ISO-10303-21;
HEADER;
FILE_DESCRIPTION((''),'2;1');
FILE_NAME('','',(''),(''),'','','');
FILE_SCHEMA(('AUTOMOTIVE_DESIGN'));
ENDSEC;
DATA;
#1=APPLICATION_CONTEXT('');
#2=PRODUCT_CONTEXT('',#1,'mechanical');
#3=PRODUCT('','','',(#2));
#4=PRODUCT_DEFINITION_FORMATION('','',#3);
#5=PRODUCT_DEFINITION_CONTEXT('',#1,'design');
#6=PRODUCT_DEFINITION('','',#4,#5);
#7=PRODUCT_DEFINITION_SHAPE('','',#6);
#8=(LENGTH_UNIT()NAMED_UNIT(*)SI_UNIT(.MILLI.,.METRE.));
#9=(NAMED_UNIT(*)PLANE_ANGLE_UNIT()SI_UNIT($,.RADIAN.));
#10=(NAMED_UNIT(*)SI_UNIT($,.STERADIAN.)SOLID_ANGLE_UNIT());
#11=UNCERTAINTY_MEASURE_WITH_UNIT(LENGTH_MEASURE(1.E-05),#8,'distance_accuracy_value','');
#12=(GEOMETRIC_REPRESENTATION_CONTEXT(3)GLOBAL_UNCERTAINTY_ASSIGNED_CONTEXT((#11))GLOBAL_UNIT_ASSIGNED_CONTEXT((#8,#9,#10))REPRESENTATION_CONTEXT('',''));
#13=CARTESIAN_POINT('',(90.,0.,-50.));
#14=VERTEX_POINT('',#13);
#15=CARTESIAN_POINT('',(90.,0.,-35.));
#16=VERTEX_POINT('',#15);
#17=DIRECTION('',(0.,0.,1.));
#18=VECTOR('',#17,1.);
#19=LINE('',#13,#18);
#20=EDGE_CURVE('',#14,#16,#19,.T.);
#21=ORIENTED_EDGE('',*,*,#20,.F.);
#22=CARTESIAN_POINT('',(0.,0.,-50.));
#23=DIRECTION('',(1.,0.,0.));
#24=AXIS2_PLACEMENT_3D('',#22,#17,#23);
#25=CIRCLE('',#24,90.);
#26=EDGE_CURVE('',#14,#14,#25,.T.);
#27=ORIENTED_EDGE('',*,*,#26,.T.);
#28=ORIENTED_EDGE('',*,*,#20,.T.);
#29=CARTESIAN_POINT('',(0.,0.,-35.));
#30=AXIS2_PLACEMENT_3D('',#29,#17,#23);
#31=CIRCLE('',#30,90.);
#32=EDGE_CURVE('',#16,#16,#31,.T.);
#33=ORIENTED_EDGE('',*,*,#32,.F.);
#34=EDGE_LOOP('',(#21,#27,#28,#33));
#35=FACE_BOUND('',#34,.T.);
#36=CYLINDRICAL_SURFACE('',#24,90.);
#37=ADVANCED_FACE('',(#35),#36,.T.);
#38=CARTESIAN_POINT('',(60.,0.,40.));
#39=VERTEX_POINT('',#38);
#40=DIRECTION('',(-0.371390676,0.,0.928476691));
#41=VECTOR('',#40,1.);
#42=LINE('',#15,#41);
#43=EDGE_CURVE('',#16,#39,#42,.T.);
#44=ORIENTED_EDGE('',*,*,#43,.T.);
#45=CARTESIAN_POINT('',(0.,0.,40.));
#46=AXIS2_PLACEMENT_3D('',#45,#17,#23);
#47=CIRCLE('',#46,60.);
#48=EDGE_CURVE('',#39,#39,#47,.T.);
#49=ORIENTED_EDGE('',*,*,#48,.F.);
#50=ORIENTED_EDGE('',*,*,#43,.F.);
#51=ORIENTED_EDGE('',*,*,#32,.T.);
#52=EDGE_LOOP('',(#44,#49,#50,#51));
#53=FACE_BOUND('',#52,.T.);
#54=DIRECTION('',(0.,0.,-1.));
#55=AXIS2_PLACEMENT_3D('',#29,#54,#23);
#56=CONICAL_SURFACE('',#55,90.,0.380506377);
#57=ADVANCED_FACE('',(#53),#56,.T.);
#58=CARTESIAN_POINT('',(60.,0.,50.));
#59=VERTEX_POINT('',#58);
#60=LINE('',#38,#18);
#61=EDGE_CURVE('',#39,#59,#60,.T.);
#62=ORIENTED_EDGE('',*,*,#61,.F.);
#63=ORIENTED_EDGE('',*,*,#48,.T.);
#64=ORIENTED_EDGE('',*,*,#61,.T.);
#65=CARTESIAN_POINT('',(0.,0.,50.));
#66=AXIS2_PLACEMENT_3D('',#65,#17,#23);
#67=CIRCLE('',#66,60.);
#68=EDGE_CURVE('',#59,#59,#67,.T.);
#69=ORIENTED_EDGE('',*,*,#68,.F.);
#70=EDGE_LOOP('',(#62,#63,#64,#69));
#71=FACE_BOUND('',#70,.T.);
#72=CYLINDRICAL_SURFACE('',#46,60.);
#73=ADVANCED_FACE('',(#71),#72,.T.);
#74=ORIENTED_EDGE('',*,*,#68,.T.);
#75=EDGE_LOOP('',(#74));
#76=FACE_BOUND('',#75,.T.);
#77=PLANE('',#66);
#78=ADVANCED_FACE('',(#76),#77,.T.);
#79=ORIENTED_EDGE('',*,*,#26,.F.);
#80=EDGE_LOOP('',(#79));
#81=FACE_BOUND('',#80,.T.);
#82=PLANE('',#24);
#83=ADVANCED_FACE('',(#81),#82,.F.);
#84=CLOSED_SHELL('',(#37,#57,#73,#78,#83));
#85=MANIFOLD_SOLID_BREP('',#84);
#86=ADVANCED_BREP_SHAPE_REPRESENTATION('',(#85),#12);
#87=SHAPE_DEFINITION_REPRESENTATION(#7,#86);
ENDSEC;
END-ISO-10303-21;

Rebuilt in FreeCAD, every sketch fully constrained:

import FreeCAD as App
import Part
import Sketcher

V = App.Vector
Q = App.Units.Quantity

doc = App.newDocument("Part")
body = doc.addObject("PartDesign::Body", "Body")

# Sketch on XZ plane
sketch1 = doc.addObject("Sketcher::SketchObject", "Sketch")
body.addObject(sketch1)
sketch1.AttachmentSupport = (doc.XZ_Plane, [""])
sketch1.MapMode = "FlatFace"
sketch1.addGeometry(Part.LineSegment(V(0, 50, 0), V(0, -50, 0)), False)
sketch1.addGeometry(Part.LineSegment(V(0, -50, 0), V(90, -50, 0)), False)
sketch1.addGeometry(Part.LineSegment(V(90, -50, 0), V(90, -35, 0)), False)
sketch1.addGeometry(Part.LineSegment(V(90, -35, 0), V(60, 40, 0)), False)
sketch1.addGeometry(Part.LineSegment(V(60, 40, 0), V(60, 50, 0)), False)
sketch1.addGeometry(Part.LineSegment(V(60, 50, 0), V(0, 50, 0)), False)
sketch1.addConstraint(Sketcher.Constraint("Coincident", 0, 2, 1, 1))
sketch1.addConstraint(Sketcher.Constraint("Coincident", 1, 2, 2, 1))
sketch1.addConstraint(Sketcher.Constraint("Coincident", 2, 2, 3, 1))
sketch1.addConstraint(Sketcher.Constraint("Coincident", 3, 2, 4, 1))
sketch1.addConstraint(Sketcher.Constraint("Coincident", 4, 2, 5, 1))
sketch1.addConstraint(Sketcher.Constraint("Coincident", 5, 2, 0, 1))
sketch1.addConstraint(Sketcher.Constraint("Vertical", 0))
sketch1.addConstraint(Sketcher.Constraint("Horizontal", 1))
sketch1.addConstraint(Sketcher.Constraint("Vertical", 2))
sketch1.addConstraint(Sketcher.Constraint("Vertical", 4))
sketch1.addConstraint(Sketcher.Constraint("Horizontal", 5))
sketch1.addConstraint(Sketcher.Constraint("Symmetric", 0, 2, 5, 2, -1, 1))
sketch1.addConstraint(Sketcher.Constraint("DistanceX", 1, 1, 1, 2, Q("90 mm")))
sketch1.addConstraint(Sketcher.Constraint("DistanceX", 5, 2, 5, 1, Q("60 mm")))
sketch1.addConstraint(Sketcher.Constraint("DistanceY", 0, 2, 0, 1, Q("100 mm")))
sketch1.addConstraint(Sketcher.Constraint("DistanceY", 2, 1, 2, 2, Q("15 mm")))
sketch1.addConstraint(Sketcher.Constraint("DistanceY", 4, 1, 4, 2, Q("10 mm")))
revolution = doc.addObject("PartDesign::Revolution", "Revolution")
body.addObject(revolution)
revolution.Profile = sketch1
revolution.ReferenceAxis = (sketch1, ["V_Axis"])
revolution.Angle = 360

doc.recompute()
